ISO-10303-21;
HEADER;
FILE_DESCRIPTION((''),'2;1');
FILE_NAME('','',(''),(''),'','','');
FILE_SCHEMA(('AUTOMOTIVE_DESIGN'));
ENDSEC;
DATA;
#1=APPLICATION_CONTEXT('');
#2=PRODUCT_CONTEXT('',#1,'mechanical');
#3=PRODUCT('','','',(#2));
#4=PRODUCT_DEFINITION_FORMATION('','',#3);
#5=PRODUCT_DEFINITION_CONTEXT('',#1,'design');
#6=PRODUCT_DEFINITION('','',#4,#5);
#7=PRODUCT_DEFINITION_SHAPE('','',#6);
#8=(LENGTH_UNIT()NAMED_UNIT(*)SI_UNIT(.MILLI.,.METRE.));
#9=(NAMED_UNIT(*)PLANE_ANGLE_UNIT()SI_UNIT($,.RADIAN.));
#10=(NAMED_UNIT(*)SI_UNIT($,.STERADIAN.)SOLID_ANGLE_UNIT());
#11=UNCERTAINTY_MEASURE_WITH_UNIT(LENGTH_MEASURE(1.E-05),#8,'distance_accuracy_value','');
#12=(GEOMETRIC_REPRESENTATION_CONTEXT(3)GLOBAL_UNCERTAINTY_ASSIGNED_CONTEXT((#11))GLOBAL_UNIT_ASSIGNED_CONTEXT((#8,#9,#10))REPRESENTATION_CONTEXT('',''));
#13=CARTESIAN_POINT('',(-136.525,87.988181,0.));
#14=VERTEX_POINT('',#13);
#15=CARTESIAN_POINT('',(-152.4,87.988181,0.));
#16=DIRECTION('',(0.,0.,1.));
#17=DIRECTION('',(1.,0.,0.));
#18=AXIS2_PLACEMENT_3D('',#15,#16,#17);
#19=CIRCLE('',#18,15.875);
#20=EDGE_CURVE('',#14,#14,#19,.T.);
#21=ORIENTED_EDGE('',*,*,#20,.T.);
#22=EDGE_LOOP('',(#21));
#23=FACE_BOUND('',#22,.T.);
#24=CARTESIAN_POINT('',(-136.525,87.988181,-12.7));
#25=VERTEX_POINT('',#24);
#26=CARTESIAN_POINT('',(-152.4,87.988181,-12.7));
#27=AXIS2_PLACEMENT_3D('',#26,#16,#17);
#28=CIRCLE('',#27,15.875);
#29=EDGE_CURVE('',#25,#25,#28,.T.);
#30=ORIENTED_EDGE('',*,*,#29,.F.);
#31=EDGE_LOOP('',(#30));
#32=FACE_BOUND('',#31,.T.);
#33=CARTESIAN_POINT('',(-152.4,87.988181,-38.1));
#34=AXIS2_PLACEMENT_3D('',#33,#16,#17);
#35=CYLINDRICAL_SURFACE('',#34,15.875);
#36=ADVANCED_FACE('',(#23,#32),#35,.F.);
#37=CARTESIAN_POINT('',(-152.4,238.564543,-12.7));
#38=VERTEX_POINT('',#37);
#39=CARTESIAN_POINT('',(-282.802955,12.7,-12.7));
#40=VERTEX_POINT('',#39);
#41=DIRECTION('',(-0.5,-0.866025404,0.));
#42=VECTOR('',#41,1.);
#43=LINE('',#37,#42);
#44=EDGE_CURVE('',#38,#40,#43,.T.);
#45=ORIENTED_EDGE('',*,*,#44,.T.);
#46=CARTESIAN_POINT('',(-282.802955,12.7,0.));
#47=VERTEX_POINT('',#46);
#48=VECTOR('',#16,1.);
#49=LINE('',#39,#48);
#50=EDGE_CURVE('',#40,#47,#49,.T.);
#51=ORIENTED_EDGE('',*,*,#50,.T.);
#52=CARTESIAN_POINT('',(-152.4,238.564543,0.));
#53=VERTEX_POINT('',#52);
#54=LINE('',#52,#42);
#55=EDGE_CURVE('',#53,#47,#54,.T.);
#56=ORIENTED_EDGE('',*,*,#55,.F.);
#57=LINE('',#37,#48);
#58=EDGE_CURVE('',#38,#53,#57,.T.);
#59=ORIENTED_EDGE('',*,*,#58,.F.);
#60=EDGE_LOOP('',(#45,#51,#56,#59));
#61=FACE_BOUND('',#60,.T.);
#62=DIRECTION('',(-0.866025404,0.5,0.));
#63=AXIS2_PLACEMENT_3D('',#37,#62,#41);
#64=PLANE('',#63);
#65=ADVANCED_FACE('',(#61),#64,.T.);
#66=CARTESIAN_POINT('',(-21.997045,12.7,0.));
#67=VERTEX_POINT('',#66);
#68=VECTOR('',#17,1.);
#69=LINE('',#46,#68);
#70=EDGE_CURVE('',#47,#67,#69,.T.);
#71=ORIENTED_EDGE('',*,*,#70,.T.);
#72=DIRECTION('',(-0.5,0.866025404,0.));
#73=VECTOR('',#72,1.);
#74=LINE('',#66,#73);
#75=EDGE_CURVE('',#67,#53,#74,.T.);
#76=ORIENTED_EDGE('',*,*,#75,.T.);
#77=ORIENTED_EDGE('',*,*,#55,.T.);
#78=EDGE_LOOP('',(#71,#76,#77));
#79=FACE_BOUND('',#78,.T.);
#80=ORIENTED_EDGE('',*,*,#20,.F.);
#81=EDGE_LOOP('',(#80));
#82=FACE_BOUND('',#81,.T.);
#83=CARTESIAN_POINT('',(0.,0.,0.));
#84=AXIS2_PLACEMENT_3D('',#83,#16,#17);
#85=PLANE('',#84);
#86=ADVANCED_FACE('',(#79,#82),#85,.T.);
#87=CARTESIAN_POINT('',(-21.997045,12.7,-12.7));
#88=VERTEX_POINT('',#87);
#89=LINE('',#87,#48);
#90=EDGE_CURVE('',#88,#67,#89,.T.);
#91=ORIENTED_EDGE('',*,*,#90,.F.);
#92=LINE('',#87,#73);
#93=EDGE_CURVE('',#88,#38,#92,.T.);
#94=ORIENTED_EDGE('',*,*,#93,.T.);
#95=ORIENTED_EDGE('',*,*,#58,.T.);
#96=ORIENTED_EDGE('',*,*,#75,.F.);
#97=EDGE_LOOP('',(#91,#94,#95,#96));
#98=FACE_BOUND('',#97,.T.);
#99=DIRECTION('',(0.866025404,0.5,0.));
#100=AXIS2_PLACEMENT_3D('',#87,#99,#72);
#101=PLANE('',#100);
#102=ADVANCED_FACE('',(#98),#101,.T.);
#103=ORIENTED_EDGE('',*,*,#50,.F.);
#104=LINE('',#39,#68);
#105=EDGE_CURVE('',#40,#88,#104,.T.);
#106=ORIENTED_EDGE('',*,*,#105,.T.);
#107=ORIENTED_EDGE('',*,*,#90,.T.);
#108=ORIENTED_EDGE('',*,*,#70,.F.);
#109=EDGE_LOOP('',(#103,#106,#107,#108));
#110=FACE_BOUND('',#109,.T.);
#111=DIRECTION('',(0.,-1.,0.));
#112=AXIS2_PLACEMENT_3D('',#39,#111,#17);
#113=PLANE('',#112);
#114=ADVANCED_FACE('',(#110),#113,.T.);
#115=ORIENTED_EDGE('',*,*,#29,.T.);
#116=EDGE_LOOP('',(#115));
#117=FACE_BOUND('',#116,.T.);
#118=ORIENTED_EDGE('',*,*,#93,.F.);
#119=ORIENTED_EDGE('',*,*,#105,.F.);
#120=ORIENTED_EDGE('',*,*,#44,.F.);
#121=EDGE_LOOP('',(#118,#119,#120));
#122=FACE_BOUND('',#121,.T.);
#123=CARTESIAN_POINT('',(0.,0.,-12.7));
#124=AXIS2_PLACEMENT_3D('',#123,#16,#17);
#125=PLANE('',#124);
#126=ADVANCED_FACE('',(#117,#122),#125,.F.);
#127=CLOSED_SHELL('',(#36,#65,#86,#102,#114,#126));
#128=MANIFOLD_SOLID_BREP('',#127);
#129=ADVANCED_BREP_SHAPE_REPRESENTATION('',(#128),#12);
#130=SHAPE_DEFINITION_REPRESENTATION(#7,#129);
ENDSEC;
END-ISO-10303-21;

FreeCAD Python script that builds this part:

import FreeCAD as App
import Part
import Sketcher
from FreeCAD import Vector
Q = App.Units.Quantity

doc = App.newDocument("Part")
params = doc.addObject("Spreadsheet::Sheet", "Params")
for row, (alias, value) in enumerate([
    ("pad1_length", "0.5 in"),
    ("sketch2_diameter", "1.25 in"),
    ("pocket1_length", "1.5 in"),
], start=1):
    params.set(f"A{row}", alias)
    params.set(f"B{row}", "=" + value)
    params.setAlias(f"B{row}", alias)

body = doc.addObject("PartDesign::Body", "Body")

# Sketch on XY plane
sketch1 = body.newObject("Sketcher::SketchObject", "Sketch")
sketch1.AttachmentSupport = (doc.getObject("XY_Plane"), [""])
sketch1.MapMode = "FlatFace"
sketch1.addGeometry([
    Part.LineSegment(Vector(-283, 13, 0), Vector(-22, 13, 0)),
    Part.LineSegment(Vector(-22, 13, 0), Vector(-152, 239, 0)),
    Part.LineSegment(Vector(-152, 239, 0), Vector(-283, 13, 0)),
], False)
sketch1.addConstraint([
    Sketcher.Constraint("Coincident", 0, 2, 1, 1),
    Sketcher.Constraint("Coincident", 1, 2, 2, 1),
    Sketcher.Constraint("Coincident", 2, 2, 0, 1),
    Sketcher.Constraint("Horizontal", 0),
    Sketcher.Constraint("Equal", 1, 2),
    Sketcher.Constraint("DistanceX", 1, 2, -1, 1, Q("6 in")),
    Sketcher.Constraint("Angle", 1, Q("120 deg")),
    Sketcher.Constraint("DistanceY", -1, 1, 0, 2, Q("0.5 in")),
    Sketcher.Constraint("DistanceX", 0, 1, 0, 2, 260.805909),
])
pad1 = body.newObject("PartDesign::Pad", "Pad")
pad1.Profile = sketch1
pad1.setExpression("Length", "Params.pad1_length")
pad1.Reversed = True

# Sketch on XY plane
sketch2 = body.newObject("Sketcher::SketchObject", "Sketch001")
sketch2.AttachmentSupport = (doc.getObject("XY_Plane"), [""])
sketch2.MapMode = "FlatFace"
sketch2.addGeometry(Part.Circle(Vector(-152, 88, 0), Vector(0, 0, 1), 16), False)
sketch2.addConstraint([
    Sketcher.Constraint("Diameter", 0, Q("1.25 in")),
    Sketcher.Constraint("DistanceX", 0, 3, -1, 1, Q("6 in")),
    Sketcher.Constraint("DistanceY", -1, 1, 0, 3, 87.988181),
])
sketch2.setExpression("Constraints[0]", "Params.sketch2_diameter")
pocket1 = body.newObject("PartDesign::Pocket", "Pocket")
pocket1.Profile = sketch2
pocket1.setExpression("Length", "Params.pocket1_length")

doc.recompute()
